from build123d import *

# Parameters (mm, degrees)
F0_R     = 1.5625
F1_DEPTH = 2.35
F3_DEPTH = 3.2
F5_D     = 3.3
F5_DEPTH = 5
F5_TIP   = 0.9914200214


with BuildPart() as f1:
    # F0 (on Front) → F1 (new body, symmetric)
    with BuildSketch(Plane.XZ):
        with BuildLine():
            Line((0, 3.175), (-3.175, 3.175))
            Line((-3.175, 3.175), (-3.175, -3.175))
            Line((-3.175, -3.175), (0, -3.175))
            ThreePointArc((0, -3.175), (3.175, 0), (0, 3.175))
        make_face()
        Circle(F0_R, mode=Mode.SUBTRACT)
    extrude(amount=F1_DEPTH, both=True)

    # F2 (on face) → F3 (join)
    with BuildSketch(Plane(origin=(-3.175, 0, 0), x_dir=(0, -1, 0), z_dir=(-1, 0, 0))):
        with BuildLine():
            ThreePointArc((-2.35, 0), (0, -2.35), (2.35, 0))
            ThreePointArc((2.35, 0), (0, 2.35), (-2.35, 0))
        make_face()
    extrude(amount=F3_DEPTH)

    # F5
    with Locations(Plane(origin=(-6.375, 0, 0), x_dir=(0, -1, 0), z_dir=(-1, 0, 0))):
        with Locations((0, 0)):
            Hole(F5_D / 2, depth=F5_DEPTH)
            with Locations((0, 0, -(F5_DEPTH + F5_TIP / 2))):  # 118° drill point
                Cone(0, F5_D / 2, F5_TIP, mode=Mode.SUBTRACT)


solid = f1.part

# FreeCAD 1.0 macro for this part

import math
import FreeCAD as App
import Part
import Sketcher

doc = App.newDocument("Part")
params = doc.addObject("Spreadsheet::Sheet", "Params")
for row, (alias, value) in enumerate([
    ("pad1_length", "4.7 mm"),
    ("sketch2_diameter", "4.7 mm"),
    ("pad2_length", "3.2 mm"),
    ("sketch3_diameter", "3.3 mm"),
    ("hole_diameter", "3.3 mm"),
    ("hole_depth", "5 mm"),
], start=1):
    params.set(f"A{row}", alias)
    params.set(f"B{row}", "=" + value)
    params.setAlias(f"B{row}", alias)

body = doc.addObject("PartDesign::Body", "Body")

sketch1 = doc.addObject("Sketcher::SketchObject", "Sketch")
body.addObject(sketch1)
sketch1.AttachmentSupport = (doc.XZ_Plane, [""])
sketch1.MapMode = "FlatFace"
sketch1.addGeometry([
    Part.LineSegment(App.Vector(0, 3.175, 0), App.Vector(-3.175, 3.175, 0)),
    Part.LineSegment(App.Vector(-3.175, 3.175, 0), App.Vector(-3.175, -3.175, 0)),
    Part.LineSegment(App.Vector(-3.175, -3.175, 0), App.Vector(0, -3.175, 0)),
    Part.ArcOfCircle(Part.Circle(App.Vector(0, 0, 0), App.Vector(0, 0, 1), 3.175), math.radians(-90), math.radians(90)),
    Part.Circle(App.Vector(0, 0, 0), App.Vector(0, 0, 1), 1.5625),
], False)
sketch1.addConstraint([
    Sketcher.Constraint("Coincident", 0, 2, 1, 1),
    Sketcher.Constraint("Coincident", 1, 2, 2, 1),
    Sketcher.Constraint("Tangent", 2, 2, 3, 1),
    Sketcher.Constraint("Tangent", 3, 2, 0, 1),
    Sketcher.Constraint("Horizontal", 0),
    Sketcher.Constraint("Vertical", 1),
    Sketcher.Constraint("Horizontal", 2),
    Sketcher.Constraint("Coincident", 3, 3, -1, 1),
    Sketcher.Constraint("Coincident", 4, 3, -1, 1),
    Sketcher.Constraint("Diameter", 4, 3.125),
    Sketcher.Constraint("Radius", 3, 3.175),
    Sketcher.Constraint("DistanceX", 0, 2, 0, 1, 3.175),
])
pad1 = doc.addObject("PartDesign::Pad", "Pad")
body.addObject(pad1)
pad1.Profile = sketch1
pad1.setExpression("Length", "Params.pad1_length")
pad1.Midplane = True

sketch2 = doc.addObject("Sketcher::SketchObject", "Sketch001")
body.addObject(sketch2)
sketch2.AttachmentSupport = (doc.YZ_Plane, [""])
sketch2.MapMode = "FlatFace"
sketch2.AttachmentOffset = App.Placement(App.Vector(0, 0, -3.175), App.Rotation())
sketch2.addGeometry(Part.Circle(App.Vector(0, 0, 0), App.Vector(0, 0, 1), 2.35), False)
sketch2.addConstraint([
    Sketcher.Constraint("Coincident", 0, 3, -1, 1),
    Sketcher.Constraint("Diameter", 0, 4.7),
])
sketch2.setExpression("Constraints[1]", "Params.sketch2_diameter")
pad2 = doc.addObject("PartDesign::Pad", "Pad001")
body.addObject(pad2)
pad2.Profile = sketch2
pad2.setExpression("Length", "Params.pad2_length")
pad2.Reversed = True

sketch3 = doc.addObject("Sketcher::SketchObject", "Sketch002")
body.addObject(sketch3)
sketch3.AttachmentSupport = (doc.YZ_Plane, [""])
sketch3.MapMode = "FlatFace"
sketch3.AttachmentOffset = App.Placement(App.Vector(0, 0, -6.375), App.Rotation())
sketch3.addGeometry(Part.Circle(App.Vector(0, 0, 0), App.Vector(0, 0, 1), 1.65), False)
sketch3.addConstraint([
    Sketcher.Constraint("Coincident", 0, 3, -1, 1),
    Sketcher.Constraint("Diameter", 0, 3.3),
])
sketch3.setExpression("Constraints[1]", "Params.sketch3_diameter")
doc.recompute()
hole = doc.addObject("PartDesign::Hole", "Hole")
body.addObject(hole)
hole.Profile = sketch3
hole.ThreadType = "None"
hole.setExpression("Diameter", "Params.hole_diameter")
hole.DepthType = "Dimension"
hole.setExpression("Depth", "Params.hole_depth")
hole.DrillPoint = "Angled"
hole.DrillPointAngle = 118
hole.Reversed = True

doc.recompute()
